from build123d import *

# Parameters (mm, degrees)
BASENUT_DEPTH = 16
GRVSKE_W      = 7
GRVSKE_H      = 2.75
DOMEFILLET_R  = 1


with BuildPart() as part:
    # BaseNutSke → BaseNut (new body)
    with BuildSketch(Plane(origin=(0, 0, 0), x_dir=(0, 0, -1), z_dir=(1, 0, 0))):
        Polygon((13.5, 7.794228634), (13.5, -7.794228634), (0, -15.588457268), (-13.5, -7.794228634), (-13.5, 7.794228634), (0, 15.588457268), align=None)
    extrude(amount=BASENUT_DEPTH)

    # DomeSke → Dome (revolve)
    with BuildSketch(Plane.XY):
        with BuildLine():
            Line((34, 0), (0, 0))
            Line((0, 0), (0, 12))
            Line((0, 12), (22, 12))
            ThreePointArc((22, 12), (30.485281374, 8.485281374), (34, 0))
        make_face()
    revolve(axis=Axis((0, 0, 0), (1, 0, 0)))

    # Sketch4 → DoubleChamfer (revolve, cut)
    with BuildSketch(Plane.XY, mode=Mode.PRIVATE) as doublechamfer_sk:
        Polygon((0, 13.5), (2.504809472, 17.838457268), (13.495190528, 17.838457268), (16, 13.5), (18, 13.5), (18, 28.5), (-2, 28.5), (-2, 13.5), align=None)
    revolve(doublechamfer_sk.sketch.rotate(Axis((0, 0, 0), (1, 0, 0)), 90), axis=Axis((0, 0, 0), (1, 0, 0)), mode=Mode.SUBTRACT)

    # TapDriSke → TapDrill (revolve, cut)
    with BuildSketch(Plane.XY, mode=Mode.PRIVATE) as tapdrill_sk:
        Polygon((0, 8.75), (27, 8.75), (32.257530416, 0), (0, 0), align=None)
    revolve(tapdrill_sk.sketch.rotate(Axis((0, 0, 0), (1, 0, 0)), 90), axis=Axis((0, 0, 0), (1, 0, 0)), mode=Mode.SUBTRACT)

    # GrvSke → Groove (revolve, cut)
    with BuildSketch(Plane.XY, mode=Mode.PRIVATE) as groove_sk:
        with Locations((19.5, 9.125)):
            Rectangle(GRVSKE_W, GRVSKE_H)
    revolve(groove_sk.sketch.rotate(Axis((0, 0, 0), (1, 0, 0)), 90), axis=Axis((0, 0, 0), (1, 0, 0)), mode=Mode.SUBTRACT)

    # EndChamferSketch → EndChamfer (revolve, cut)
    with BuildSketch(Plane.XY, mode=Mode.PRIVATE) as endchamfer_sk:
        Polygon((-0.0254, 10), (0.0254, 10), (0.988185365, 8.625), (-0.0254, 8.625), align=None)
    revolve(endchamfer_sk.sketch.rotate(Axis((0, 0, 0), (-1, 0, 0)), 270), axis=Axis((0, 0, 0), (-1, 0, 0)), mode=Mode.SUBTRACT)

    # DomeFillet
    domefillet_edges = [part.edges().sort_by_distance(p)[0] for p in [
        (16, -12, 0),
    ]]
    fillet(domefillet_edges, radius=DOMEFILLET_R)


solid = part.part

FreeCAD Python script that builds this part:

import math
import FreeCAD as App
import Part
import Sketcher
Q = App.Units.Quantity


def edges_at(feature, points):
    """Names of the edges that pass closest to the given points."""
    edges = feature.Shape.Edges
    near = lambda p: min(range(len(edges)), key=lambda i: edges[i].distToShape(Part.Vertex(*p))[0])
    return sorted({f"Edge{near(p) + 1}" for p in points})

doc = App.newDocument("Part")
body = doc.addObject("PartDesign::Body", "Body")

# Sketch on YZ plane
sketch1 = body.newObject("Sketcher::SketchObject", "Sketch")
sketch1.AttachmentSupport = (doc.getObject("YZ_Plane"), [""])
sketch1.MapMode = "FlatFace"
sketch1.addGeometry([
    Part.LineSegment(App.Vector(-7.794229, -13.5, 0), App.Vector(7.794229, -13.5, 0)),  # 0
    Part.LineSegment(App.Vector(7.794229, -13.5, 0), App.Vector(15.588457, 0, 0)),  # 1
    Part.LineSegment(App.Vector(15.588457, 0, 0), App.Vector(7.794229, 13.5, 0)),  # 2
    Part.LineSegment(App.Vector(7.794229, 13.5, 0), App.Vector(-7.794229, 13.5, 0)),  # 3
    Part.LineSegment(App.Vector(-7.794229, 13.5, 0), App.Vector(-15.588457, 0, 0)),  # 4
    Part.LineSegment(App.Vector(-15.588457, 0, 0), App.Vector(-7.794229, -13.5, 0)),  # 5
], False)
sketch1.addConstraint([
    Sketcher.Constraint("Coincident", 0, 2, 1, 1),
    Sketcher.Constraint("Coincident", 1, 2, 2, 1),
    Sketcher.Constraint("Coincident", 2, 2, 3, 1),
    Sketcher.Constraint("Coincident", 3, 2, 4, 1),
    Sketcher.Constraint("Coincident", 4, 2, 5, 1),
    Sketcher.Constraint("Coincident", 5, 2, 0, 1),
    Sketcher.Constraint("Horizontal", 0),
    Sketcher.Constraint("Horizontal", 3),
    Sketcher.Constraint("Symmetric", 0, 2, 3, 2, -1, 1),
    Sketcher.Constraint("Symmetric", 1, 2, 4, 2, -1, 1),
    Sketcher.Constraint("PointOnObject", 1, 2, -1),
    Sketcher.Constraint("Parallel", 2, 5),
    Sketcher.Constraint("Vertical", 0, 2, 2, 2),
    Sketcher.Constraint("Angle", 1, Q("60 deg")),
    Sketcher.Constraint("DistanceY", 0, 2, 2, 2, Q("27 mm")),
    Sketcher.Constraint("DistanceX", 0, 1, 0, 2, Q("15.588457 mm")),
])
pad1 = body.newObject("PartDesign::Pad", "Pad")
pad1.Profile = sketch1
pad1.Length = 16

# Sketch on XY plane
sketch2 = body.newObject("Sketcher::SketchObject", "Sketch001")
sketch2.AttachmentSupport = (doc.getObject("XY_Plane"), [""])
sketch2.MapMode = "FlatFace"
sketch2.addGeometry([
    Part.LineSegment(App.Vector(0, 0, 0), App.Vector(34, 0, 0)),
    Part.ArcOfCircle(Part.Circle(App.Vector(22, 0, 0), App.Vector(0, 0, 1), 12), math.radians(0), math.radians(90)),
    Part.LineSegment(App.Vector(22, 12, 0), App.Vector(0, 12, 0)),
    Part.LineSegment(App.Vector(0, 12, 0), App.Vector(0, 0, 0)),
], False)
sketch2.addConstraint([
    Sketcher.Constraint("Coincident", 0, 2, 1, 1),
    Sketcher.Constraint("Tangent", 1, 2, 2, 1),
    Sketcher.Constraint("Coincident", 2, 2, 3, 1),
    Sketcher.Constraint("Coincident", 3, 2, 0, 1),
    Sketcher.Constraint("Horizontal", 0),
    Sketcher.Constraint("Horizontal", 2),
    Sketcher.Constraint("Vertical", 3),
    Sketcher.Constraint("Coincident", 3, 2, -1, 1),
    Sketcher.Constraint("PointOnObject", 1, 3, -1),
    Sketcher.Constraint("Radius", 1, Q("12 mm")),
    Sketcher.Constraint("DistanceX", 0, 1, 0, 2, Q("34 mm")),
])
revolution = body.newObject("PartDesign::Revolution", "Revolution")
revolution.Profile = sketch2
revolution.ReferenceAxis = (sketch2, ["H_Axis"])
revolution.Angle = 360

# Sketch on XY plane
sketch3 = body.newObject("Sketcher::SketchObject", "Sketch002")
sketch3.AttachmentSupport = (doc.getObject("XY_Plane"), [""])
sketch3.MapMode = "FlatFace"
sketch3.addGeometry([
    Part.LineSegment(App.Vector(0, 13.5, 0), App.Vector(2.504809, 17.838457, 0)),  # 0
    Part.LineSegment(App.Vector(2.504809, 17.838457, 0), App.Vector(13.495191, 17.838457, 0)),  # 1
    Part.LineSegment(App.Vector(13.495191, 17.838457, 0), App.Vector(16, 13.5, 0)),  # 2
    Part.LineSegment(App.Vector(16, 13.5, 0), App.Vector(18, 13.5, 0)),  # 3
    Part.LineSegment(App.Vector(18, 13.5, 0), App.Vector(18, 28.5, 0)),  # 4
    Part.LineSegment(App.Vector(18, 28.5, 0), App.Vector(-2, 28.5, 0)),  # 5
    Part.LineSegment(App.Vector(-2, 28.5, 0), App.Vector(-2, 13.5, 0)),  # 6
    Part.LineSegment(App.Vector(-2, 13.5, 0), App.Vector(0, 13.5, 0)),  # 7
], False)
sketch3.addConstraint([
    Sketcher.Constraint("Coincident", 0, 2, 1, 1),
    Sketcher.Constraint("Coincident", 1, 2, 2, 1),
    Sketcher.Constraint("Coincident", 2, 2, 3, 1),
    Sketcher.Constraint("Coincident", 3, 2, 4, 1),
    Sketcher.Constraint("Coincident", 4, 2, 5, 1),
    Sketcher.Constraint("Coincident", 5, 2, 6, 1),
    Sketcher.Constraint("Coincident", 6, 2, 7, 1),
    Sketcher.Constraint("Coincident", 7, 2, 0, 1),
    Sketcher.Constraint("Horizontal", 1),
    Sketcher.Constraint("Horizontal", 3),
    Sketcher.Constraint("Vertical", 4),
    Sketcher.Constraint("Horizontal", 5),
    Sketcher.Constraint("Vertical", 6),
    Sketcher.Constraint("Horizontal", 7),
    Sketcher.Constraint("PointOnObject", 7, 2, -2),
    Sketcher.Constraint("Horizontal", 3, 2, 6, 2),
    Sketcher.Constraint("Equal", 3, 7),
    Sketcher.Constraint("Equal", 0, 2),
    Sketcher.Constraint("DistanceX", 3, 1, 3, 2, Q("2 mm")),
    Sketcher.Constraint("DistanceX", 5, 2, 5, 1, Q("20 mm")),
    Sketcher.Constraint("DistanceY", 4, 1, 4, 2, Q("15 mm")),
    Sketcher.Constraint("Angle", 0, Q("60 deg")),
    Sketcher.Constraint("DistanceY", -1, 1, 2, 2, Q("13.5 mm")),
    Sketcher.Constraint("DistanceX", 1, 1, 1, 2, Q("10.990381 mm")),
])
groove = body.newObject("PartDesign::Groove", "Groove")
groove.Profile = sketch3
groove.ReferenceAxis = (sketch3, ["H_Axis"])
groove.Angle = 360

# Sketch on XY plane
sketch4 = body.newObject("Sketcher::SketchObject", "Sketch003")
sketch4.AttachmentSupport = (doc.getObject("XY_Plane"), [""])
sketch4.MapMode = "FlatFace"
sketch4.addGeometry([
    Part.LineSegment(App.Vector(27, 8.75, 0), App.Vector(0, 8.75, 0)),
    Part.LineSegment(App.Vector(0, 8.75, 0), App.Vector(0, 0, 0)),
    Part.LineSegment(App.Vector(0, 0, 0), App.Vector(32.25753, 0, 0)),
    Part.LineSegment(App.Vector(32.25753, 0, 0), App.Vector(27, 8.75, 0)),
], False)
sketch4.addConstraint([
    Sketcher.Constraint("Coincident", 0, 2, 1, 1),
    Sketcher.Constraint("Coincident", 1, 2, 2, 1),
    Sketcher.Constraint("Coincident", 2, 2, 3, 1),
    Sketcher.Constraint("Coincident", 3, 2, 0, 1),
    Sketcher.Constraint("Horizontal", 0),
    Sketcher.Constraint("Vertical", 1),
    Sketcher.Constraint("Horizontal", 2),
    Sketcher.Constraint("Coincident", 1, 2, -1, 1),
    Sketcher.Constraint("DistanceX", 0, 2, 0, 1, Q("27 mm")),
    Sketcher.Constraint("Angle", 3, Q("121 deg")),
    Sketcher.Constraint("DistanceY", 1, 2, 1, 1, Q("8.75 mm")),
])
groove2 = body.newObject("PartDesign::Groove", "Groove001")
groove2.Profile = sketch4
groove2.ReferenceAxis = (sketch4, ["H_Axis"])
groove2.Angle = 360

# Sketch on XY plane
sketch5 = body.newObject("Sketcher::SketchObject", "Sketch004")
sketch5.AttachmentSupport = (doc.getObject("XY_Plane"), [""])
sketch5.MapMode = "FlatFace"
sketch5.addGeometry([
    Part.LineSegment(App.Vector(16, 10.5, 0), App.Vector(16, 7.75, 0)),
    Part.LineSegment(App.Vector(16, 7.75, 0), App.Vector(23, 7.75, 0)),
    Part.LineSegment(App.Vector(23, 7.75, 0), App.Vector(23, 10.5, 0)),
    Part.LineSegment(App.Vector(23, 10.5, 0), App.Vector(16, 10.5, 0)),
], False)
sketch5.addConstraint([
    Sketcher.Constraint("Coincident", 0, 2, 1, 1),
    Sketcher.Constraint("Coincident", 1, 2, 2, 1),
    Sketcher.Constraint("Coincident", 2, 2, 3, 1),
    Sketcher.Constraint("Coincident", 3, 2, 0, 1),
    Sketcher.Constraint("Vertical", 0),
    Sketcher.Constraint("Horizontal", 1),
    Sketcher.Constraint("Vertical", 2),
    Sketcher.Constraint("Horizontal", 3),
    Sketcher.Constraint("DistanceX", 1, 1, 1, 2, Q("7 mm")),
    Sketcher.Constraint("DistanceX", -1, 1, 0, 2, Q("16 mm")),
    Sketcher.Constraint("DistanceY", 0, 2, 0, 1, Q("2.75 mm")),
    Sketcher.Constraint("DistanceY", -1, 1, 2, 2, Q("10.5 mm")),
])
groove3 = body.newObject("PartDesign::Groove", "Groove002")
groove3.Profile = sketch5
groove3.ReferenceAxis = (sketch5, ["H_Axis"])
groove3.Angle = 360

# Sketch on XY plane
sketch6 = body.newObject("Sketcher::SketchObject", "Sketch005")
sketch6.AttachmentSupport = (doc.getObject("XY_Plane"), [""])
sketch6.MapMode = "FlatFace"
sketch6.addGeometry([
    Part.LineSegment(App.Vector(0.0254, 10, 0), App.Vector(-0.0254, 10, 0)),
    Part.LineSegment(App.Vector(-0.0254, 10, 0), App.Vector(-0.0254, 8.625, 0)),
    Part.LineSegment(App.Vector(-0.0254, 8.625, 0), App.Vector(0.988185, 8.625, 0)),
    Part.LineSegment(App.Vector(0.988185, 8.625, 0), App.Vector(0.0254, 10, 0)),
], False)
sketch6.addConstraint([
    Sketcher.Constraint("Coincident", 0, 2, 1, 1),
    Sketcher.Constraint("Coincident", 1, 2, 2, 1),
    Sketcher.Constraint("Coincident", 2, 2, 3, 1),
    Sketcher.Constraint("Coincident", 3, 2, 0, 1),
    Sketcher.Constraint("Horizontal", 0),
    Sketcher.Constraint("Vertical", 1),
    Sketcher.Constraint("Horizontal", 2),
    Sketcher.Constraint("Angle", 3, Q("125 deg")),
    Sketcher.Constraint("DistanceY", -1, 1, 0, 2, Q("10 mm")),
    Sketcher.Constraint("DistanceY", 1, 2, 1, 1, Q("1.375 mm")),
    Sketcher.Constraint("DistanceX", 0, 2, 0, 1, Q("0.0508 mm")),
    Sketcher.Constraint("DistanceX", 0, 2, -1, 1, Q("0.0254 mm")),
])
groove4 = body.newObject("PartDesign::Groove", "Groove003")
groove4.Profile = sketch6
groove4.ReferenceAxis = (sketch6, ["H_Axis"])
groove4.Angle = 360
doc.recompute()

fillet = body.newObject("PartDesign::Fillet", "Fillet")
fillet.Base = (groove4, edges_at(groove4, [(16, -12, 0)]))
fillet.Radius = 1

doc.recompute()
